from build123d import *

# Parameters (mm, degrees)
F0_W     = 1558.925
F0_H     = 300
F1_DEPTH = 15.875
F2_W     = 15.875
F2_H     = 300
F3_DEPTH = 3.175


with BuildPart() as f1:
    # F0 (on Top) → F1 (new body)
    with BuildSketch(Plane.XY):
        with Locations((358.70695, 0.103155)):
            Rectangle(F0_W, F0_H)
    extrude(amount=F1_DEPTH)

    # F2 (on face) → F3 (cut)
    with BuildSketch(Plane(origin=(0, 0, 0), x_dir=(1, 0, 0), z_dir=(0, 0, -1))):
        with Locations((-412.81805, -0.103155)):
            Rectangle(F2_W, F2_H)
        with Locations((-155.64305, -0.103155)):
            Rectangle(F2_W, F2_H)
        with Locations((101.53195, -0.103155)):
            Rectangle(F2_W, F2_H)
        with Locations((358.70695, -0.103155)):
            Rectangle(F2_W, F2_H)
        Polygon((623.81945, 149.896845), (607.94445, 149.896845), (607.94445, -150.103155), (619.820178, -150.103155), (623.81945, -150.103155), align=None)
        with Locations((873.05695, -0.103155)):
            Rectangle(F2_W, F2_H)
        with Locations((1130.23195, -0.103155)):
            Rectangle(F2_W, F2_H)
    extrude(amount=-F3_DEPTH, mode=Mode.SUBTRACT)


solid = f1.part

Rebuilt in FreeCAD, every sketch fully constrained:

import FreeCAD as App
import Part
import Sketcher

V = App.Vector
Q = App.Units.Quantity


def add_polygon(sketch, points):
    """Adds a closed chain of lines whose ends are joined by coincident constraints."""
    first, n = sketch.GeometryCount, len(points)
    for a, b in zip(points, points[1:] + points[:1]):
        sketch.addGeometry(Part.LineSegment(App.Vector(*a, 0), App.Vector(*b, 0)), False)
    for i in range(n):
        sketch.addConstraint(Sketcher.Constraint("Coincident", first + i, 2, first + (i + 1) % n, 1))

doc = App.newDocument("Part")
body = doc.addObject("PartDesign::Body", "Body")

sketch1 = body.newObject("Sketcher::SketchObject", "Sketch")
sketch1.AttachmentSupport = (doc.getObject("XY_Plane"), [""])
sketch1.MapMode = "FlatFace"
add_polygon(sketch1, [(-421, 150), (-421, -150), (1138, -150), (1138, 150)])
sketch1.addConstraint(Sketcher.Constraint("Vertical", 0))
sketch1.addConstraint(Sketcher.Constraint("Horizontal", 1))
sketch1.addConstraint(Sketcher.Constraint("Vertical", 2))
sketch1.addConstraint(Sketcher.Constraint("Horizontal", 3))
sketch1.addConstraint(Sketcher.Constraint("DistanceX", 1, 1, 1, 2, Q("61.375 in")))
sketch1.addConstraint(Sketcher.Constraint("DistanceY", 0, 2, 0, 1, 300.0))
sketch1.addConstraint(Sketcher.Constraint("DistanceX", 0, 2, -1, 1, 420.75555))
sketch1.addConstraint(Sketcher.Constraint("DistanceY", 0, 2, -1, 1, 149.896845))
pad1 = body.newObject("PartDesign::Pad", "Pad")
pad1.Profile = sketch1
pad1.Length = Q("0.625 in")

sketch2 = body.newObject("Sketcher::SketchObject", "Sketch001")
sketch2.AttachmentSupport = (doc.getObject("XY_Plane"), [""])
sketch2.MapMode = "FlatFace"
add_polygon(sketch2, [(-421, -150), (-421, 150), (-405, 150), (-405, -150)])
add_polygon(sketch2, [(-164, -150), (-164, 150), (-148, 150), (-148, -150)])
add_polygon(sketch2, [(94, -150), (94, 150), (109, 150), (109, -150)])
add_polygon(sketch2, [(351, -150), (351, 150), (367, 150), (367, -150)])
add_polygon(sketch2, [(624, -150), (608, -150), (608, 150), (624, 150)])
add_polygon(sketch2, [(865, -150), (865, 150), (881, 150), (881, -150)])
add_polygon(sketch2, [(1122, -150), (1122, 150), (1138, 150), (1138, -150)])
sketch2.addConstraint(Sketcher.Constraint("Vertical", 0))
sketch2.addConstraint(Sketcher.Constraint("Horizontal", 1))
sketch2.addConstraint(Sketcher.Constraint("Vertical", 2))
sketch2.addConstraint(Sketcher.Constraint("Horizontal", 3))
sketch2.addConstraint(Sketcher.Constraint("Vertical", 4))
sketch2.addConstraint(Sketcher.Constraint("Horizontal", 5))
sketch2.addConstraint(Sketcher.Constraint("Vertical", 6))
sketch2.addConstraint(Sketcher.Constraint("Horizontal", 7))
sketch2.addConstraint(Sketcher.Constraint("Vertical", 8))
sketch2.addConstraint(Sketcher.Constraint("Horizontal", 9))
sketch2.addConstraint(Sketcher.Constraint("Vertical", 10))
sketch2.addConstraint(Sketcher.Constraint("Horizontal", 11))
sketch2.addConstraint(Sketcher.Constraint("Vertical", 12))
sketch2.addConstraint(Sketcher.Constraint("Horizontal", 13))
sketch2.addConstraint(Sketcher.Constraint("Vertical", 14))
sketch2.addConstraint(Sketcher.Constraint("Horizontal", 15))
sketch2.addConstraint(Sketcher.Constraint("Horizontal", 16))
sketch2.addConstraint(Sketcher.Constraint("Vertical", 17))
sketch2.addConstraint(Sketcher.Constraint("Horizontal", 18))
sketch2.addConstraint(Sketcher.Constraint("Vertical", 19))
sketch2.addConstraint(Sketcher.Constraint("Vertical", 20))
sketch2.addConstraint(Sketcher.Constraint("Horizontal", 21))
sketch2.addConstraint(Sketcher.Constraint("Vertical", 22))
sketch2.addConstraint(Sketcher.Constraint("Horizontal", 23))
sketch2.addConstraint(Sketcher.Constraint("Vertical", 24))
sketch2.addConstraint(Sketcher.Constraint("Horizontal", 25))
sketch2.addConstraint(Sketcher.Constraint("Vertical", 26))
sketch2.addConstraint(Sketcher.Constraint("Horizontal", 27))
sketch2.addConstraint(Sketcher.Constraint("Horizontal", 1, 2, 4, 2))
sketch2.addConstraint(Sketcher.Constraint("Horizontal", 3, 2, 6, 2))
sketch2.addConstraint(Sketcher.Constraint("Horizontal", 5, 2, 8, 2))
sketch2.addConstraint(Sketcher.Constraint("Horizontal", 7, 2, 10, 2))
sketch2.addConstraint(Sketcher.Constraint("Horizontal", 9, 2, 12, 2))
sketch2.addConstraint(Sketcher.Constraint("Horizontal", 11, 2, 14, 2))
sketch2.addConstraint(Sketcher.Constraint("Horizontal", 15, 2, 16, 2))
sketch2.addConstraint(Sketcher.Constraint("Horizontal", 13, 2, 17, 2))
sketch2.addConstraint(Sketcher.Constraint("Horizontal", 18, 2, 20, 2))
sketch2.addConstraint(Sketcher.Constraint("Horizontal", 19, 2, 22, 2))
sketch2.addConstraint(Sketcher.Constraint("Horizontal", 21, 2, 24, 2))
sketch2.addConstraint(Sketcher.Constraint("Horizontal", 23, 2, 26, 2))
sketch2.addConstraint(Sketcher.Constraint("Equal", 3, 5))
sketch2.addConstraint(Sketcher.Constraint("Equal", 7, 9))
sketch2.addConstraint(Sketcher.Constraint("Equal", 11, 13))
sketch2.addConstraint(Sketcher.Constraint("Equal", 15, 16))
sketch2.addConstraint(Sketcher.Constraint("Equal", 18, 21))
sketch2.addConstraint(Sketcher.Constraint("Equal", 23, 25))
sketch2.addConstraint(Sketcher.Constraint("DistanceX", 1, 2, 4, 2, Q("9.5 in")))
sketch2.addConstraint(Sketcher.Constraint("DistanceX", 5, 2, 8, 2, Q("9.5 in")))
sketch2.addConstraint(Sketcher.Constraint("DistanceX", 9, 2, 12, 2, Q("9.5 in")))
sketch2.addConstraint(Sketcher.Constraint("DistanceX", 14, 2, 16, 2, Q("9.5 in")))
sketch2.addConstraint(Sketcher.Constraint("DistanceX", 18, 2, 20, 2, Q("9.5 in")))
sketch2.addConstraint(Sketcher.Constraint("DistanceX", 21, 2, 24, 2, Q("9.5 in")))
sketch2.addConstraint(Sketcher.Constraint("DistanceX", 1, 1, 1, 2, Q("0.625 in")))
sketch2.addConstraint(Sketcher.Constraint("DistanceY", 0, 1, 0, 2, 300.0))
sketch2.addConstraint(Sketcher.Constraint("DistanceX", 0, 2, -1, 1, 420.75555))
sketch2.addConstraint(Sketcher.Constraint("DistanceY", -1, 1, 0, 2, 150.103155))
pocket1 = body.newObject("PartDesign::Pocket", "Pocket")
pocket1.Profile = sketch2
pocket1.Length = Q("0.125 in")
pocket1.Reversed = True

doc.recompute()
